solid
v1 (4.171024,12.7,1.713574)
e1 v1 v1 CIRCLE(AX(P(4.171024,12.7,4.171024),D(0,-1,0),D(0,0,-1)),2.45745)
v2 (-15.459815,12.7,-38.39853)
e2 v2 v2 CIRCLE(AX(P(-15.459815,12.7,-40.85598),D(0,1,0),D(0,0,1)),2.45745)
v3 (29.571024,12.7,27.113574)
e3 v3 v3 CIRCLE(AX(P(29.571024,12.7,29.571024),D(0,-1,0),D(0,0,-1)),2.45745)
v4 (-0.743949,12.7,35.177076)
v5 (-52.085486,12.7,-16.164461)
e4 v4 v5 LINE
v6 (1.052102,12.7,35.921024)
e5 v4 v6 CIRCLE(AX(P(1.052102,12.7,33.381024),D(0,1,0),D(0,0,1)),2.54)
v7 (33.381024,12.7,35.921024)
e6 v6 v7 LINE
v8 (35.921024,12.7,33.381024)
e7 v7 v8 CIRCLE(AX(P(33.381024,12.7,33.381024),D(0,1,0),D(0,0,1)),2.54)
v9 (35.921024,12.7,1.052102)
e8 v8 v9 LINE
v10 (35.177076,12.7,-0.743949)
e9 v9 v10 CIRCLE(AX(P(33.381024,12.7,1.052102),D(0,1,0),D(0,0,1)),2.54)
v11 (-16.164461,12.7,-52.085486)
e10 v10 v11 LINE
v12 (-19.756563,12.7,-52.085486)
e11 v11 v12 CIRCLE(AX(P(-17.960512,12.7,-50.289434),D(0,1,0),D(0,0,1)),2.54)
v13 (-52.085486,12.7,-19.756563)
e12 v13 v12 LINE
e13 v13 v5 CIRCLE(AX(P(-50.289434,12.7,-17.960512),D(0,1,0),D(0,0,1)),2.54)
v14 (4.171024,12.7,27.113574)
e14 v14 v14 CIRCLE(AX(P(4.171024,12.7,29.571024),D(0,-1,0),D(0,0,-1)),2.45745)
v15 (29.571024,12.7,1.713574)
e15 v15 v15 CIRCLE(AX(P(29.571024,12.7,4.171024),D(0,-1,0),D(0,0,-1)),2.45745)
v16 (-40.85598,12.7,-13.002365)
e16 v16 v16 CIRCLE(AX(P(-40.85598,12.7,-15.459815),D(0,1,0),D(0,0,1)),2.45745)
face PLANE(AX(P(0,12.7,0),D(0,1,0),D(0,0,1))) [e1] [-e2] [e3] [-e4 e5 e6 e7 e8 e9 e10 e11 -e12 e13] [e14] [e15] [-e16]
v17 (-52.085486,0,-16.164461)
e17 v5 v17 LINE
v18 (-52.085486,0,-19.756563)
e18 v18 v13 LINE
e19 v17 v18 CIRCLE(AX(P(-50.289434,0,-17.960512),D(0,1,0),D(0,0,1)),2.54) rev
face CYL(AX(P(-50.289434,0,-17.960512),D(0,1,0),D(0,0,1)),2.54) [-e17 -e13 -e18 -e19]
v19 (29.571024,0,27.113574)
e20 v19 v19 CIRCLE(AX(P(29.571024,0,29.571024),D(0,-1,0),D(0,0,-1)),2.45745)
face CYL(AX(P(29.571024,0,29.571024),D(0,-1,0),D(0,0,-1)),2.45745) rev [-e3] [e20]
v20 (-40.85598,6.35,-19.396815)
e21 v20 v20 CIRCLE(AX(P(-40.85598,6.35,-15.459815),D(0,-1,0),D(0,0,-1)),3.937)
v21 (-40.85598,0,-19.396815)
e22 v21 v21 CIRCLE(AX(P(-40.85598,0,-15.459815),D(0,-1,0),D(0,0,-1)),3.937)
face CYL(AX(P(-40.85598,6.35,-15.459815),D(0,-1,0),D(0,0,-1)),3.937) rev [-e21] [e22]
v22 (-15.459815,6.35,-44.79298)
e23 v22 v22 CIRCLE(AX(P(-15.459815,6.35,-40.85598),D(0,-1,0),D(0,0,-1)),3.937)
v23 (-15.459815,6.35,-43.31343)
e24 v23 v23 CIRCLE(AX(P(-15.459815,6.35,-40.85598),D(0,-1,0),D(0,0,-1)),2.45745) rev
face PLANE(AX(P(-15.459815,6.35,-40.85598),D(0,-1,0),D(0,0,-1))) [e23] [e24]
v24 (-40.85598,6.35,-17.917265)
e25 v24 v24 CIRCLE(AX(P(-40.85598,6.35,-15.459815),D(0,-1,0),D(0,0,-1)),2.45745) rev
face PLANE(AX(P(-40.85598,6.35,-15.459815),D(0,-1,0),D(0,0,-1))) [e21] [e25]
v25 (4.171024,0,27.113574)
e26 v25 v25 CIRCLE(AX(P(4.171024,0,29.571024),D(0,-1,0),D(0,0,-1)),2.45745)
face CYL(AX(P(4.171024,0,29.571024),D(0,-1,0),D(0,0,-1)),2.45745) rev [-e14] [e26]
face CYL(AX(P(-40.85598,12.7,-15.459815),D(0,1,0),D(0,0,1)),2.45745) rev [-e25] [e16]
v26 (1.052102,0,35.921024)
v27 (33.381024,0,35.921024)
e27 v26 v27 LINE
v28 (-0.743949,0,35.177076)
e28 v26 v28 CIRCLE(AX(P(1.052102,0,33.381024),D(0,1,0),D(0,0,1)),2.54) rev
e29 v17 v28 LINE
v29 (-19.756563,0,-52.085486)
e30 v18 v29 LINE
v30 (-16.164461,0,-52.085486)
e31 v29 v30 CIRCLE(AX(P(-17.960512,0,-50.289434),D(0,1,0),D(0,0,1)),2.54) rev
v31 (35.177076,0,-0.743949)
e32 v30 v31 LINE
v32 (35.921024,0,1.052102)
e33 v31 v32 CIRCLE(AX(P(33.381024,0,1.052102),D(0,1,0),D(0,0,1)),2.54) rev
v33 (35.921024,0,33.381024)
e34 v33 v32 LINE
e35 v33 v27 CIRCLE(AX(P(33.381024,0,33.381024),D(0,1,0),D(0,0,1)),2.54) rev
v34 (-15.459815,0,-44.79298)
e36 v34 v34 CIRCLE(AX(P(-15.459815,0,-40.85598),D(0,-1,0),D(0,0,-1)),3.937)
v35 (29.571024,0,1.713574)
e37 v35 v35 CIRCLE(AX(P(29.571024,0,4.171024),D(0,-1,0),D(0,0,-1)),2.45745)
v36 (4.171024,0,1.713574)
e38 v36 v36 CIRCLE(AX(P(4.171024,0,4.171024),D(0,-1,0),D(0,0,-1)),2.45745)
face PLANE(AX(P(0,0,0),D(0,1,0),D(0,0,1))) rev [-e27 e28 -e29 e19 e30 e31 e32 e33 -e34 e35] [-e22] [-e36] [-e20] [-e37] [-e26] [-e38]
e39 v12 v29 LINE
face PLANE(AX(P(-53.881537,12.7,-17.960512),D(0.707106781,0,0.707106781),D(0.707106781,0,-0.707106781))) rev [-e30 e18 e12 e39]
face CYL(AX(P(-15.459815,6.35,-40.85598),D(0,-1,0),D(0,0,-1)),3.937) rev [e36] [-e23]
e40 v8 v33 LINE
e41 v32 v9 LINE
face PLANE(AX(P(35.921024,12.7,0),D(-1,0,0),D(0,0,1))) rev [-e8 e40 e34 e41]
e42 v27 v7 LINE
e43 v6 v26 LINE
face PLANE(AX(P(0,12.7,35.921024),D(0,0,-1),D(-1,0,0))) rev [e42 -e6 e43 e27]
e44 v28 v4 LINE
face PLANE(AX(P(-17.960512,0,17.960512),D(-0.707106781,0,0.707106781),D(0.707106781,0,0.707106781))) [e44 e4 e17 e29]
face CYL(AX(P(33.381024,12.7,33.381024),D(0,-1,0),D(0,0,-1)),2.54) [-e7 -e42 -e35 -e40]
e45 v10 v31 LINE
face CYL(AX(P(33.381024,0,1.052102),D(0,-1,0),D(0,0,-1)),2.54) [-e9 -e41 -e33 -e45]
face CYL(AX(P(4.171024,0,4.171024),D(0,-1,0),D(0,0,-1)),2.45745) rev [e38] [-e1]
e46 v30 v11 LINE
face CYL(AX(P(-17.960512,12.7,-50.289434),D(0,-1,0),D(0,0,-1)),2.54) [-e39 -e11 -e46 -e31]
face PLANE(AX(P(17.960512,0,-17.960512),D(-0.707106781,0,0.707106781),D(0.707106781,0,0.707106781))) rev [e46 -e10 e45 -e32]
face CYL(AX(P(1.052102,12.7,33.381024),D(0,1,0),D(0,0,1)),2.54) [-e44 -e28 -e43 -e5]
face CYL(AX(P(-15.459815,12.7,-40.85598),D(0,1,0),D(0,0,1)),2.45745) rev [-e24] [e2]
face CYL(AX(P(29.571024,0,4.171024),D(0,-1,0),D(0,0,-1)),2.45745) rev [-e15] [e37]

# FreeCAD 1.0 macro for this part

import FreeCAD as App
import Part
import Sketcher
Q = App.Units.Quantity


def edges_at(feature, points):
    """Names of the edges that pass closest to the given points."""
    edges = feature.Shape.Edges
    near = lambda p: min(range(len(edges)), key=lambda i: edges[i].distToShape(Part.Vertex(*p))[0])
    return sorted({f"Edge{near(p) + 1}" for p in points})

doc = App.newDocument("Part")
body = doc.addObject("PartDesign::Body", "Body")

# Sketch on XZ plane
sketch1 = body.newObject("Sketcher::SketchObject", "Sketch")
sketch1.AttachmentSupport = (doc.getObject("XZ_Plane"), [""])
sketch1.MapMode = "FlatFace"
sketch1.addGeometry(Part.LineSegment(App.Vector(0, 0, 0), App.Vector(0, 36, 0)), False)
sketch1.addGeometry(Part.LineSegment(App.Vector(0, 36, 0), App.Vector(36, 36, 0)), False)
sketch1.addGeometry(Part.LineSegment(App.Vector(36, 36, 0), App.Vector(36, 0, 0)), False)
sketch1.addGeometry(Part.LineSegment(App.Vector(36, 0, 0), App.Vector(0, 0, 0)), False)
sketch1.addConstraint(Sketcher.Constraint("Coincident", 0, 2, 1, 1))
sketch1.addConstraint(Sketcher.Constraint("Coincident", 1, 2, 2, 1))
sketch1.addConstraint(Sketcher.Constraint("Coincident", 2, 2, 3, 1))
sketch1.addConstraint(Sketcher.Constraint("Coincident", 3, 2, 0, 1))
sketch1.addConstraint(Sketcher.Constraint("Vertical", 0))
sketch1.addConstraint(Sketcher.Constraint("Horizontal", 1))
sketch1.addConstraint(Sketcher.Constraint("Vertical", 2))
sketch1.addConstraint(Sketcher.Constraint("Horizontal", 3))
sketch1.addConstraint(Sketcher.Constraint("Coincident", 3, 2, -1, 1))
sketch1.addConstraint(Sketcher.Constraint("Equal", 3, 0))
sketch1.addConstraint(Sketcher.Constraint("DistanceX", 1, 1, 1, 2, 35.921024))
pad1 = body.newObject("PartDesign::Pad", "Pad")
pad1.Profile = sketch1
pad1.Length = Q("0.5 in")
pad1.Reversed = True

# Sketch on an angled plane
sketch2 = body.newObject("Sketcher::SketchObject", "Sketch001")
sketch2.Placement = App.Placement(App.Vector(0, 0, 0), App.Rotation(App.Vector(0.707106781, 0, 0.707106781), App.Vector(0, 0.999999999, 0), App.Vector(-0.707106781, 0, 0.707106781), "ZXY"))
sketch2.addGeometry(Part.LineSegment(App.Vector(25, 13, 0), App.Vector(-51, 13, 0)), False)
sketch2.addGeometry(Part.LineSegment(App.Vector(-51, 13, 0), App.Vector(-51, 0, 0)), False)
sketch2.addGeometry(Part.LineSegment(App.Vector(-51, 0, 0), App.Vector(25, 0, 0)), False)
sketch2.addGeometry(Part.LineSegment(App.Vector(25, 0, 0), App.Vector(25, 13, 0)), False)
sketch2.addConstraint(Sketcher.Constraint("Coincident", 0, 2, 1, 1))
sketch2.addConstraint(Sketcher.Constraint("Coincident", 1, 2, 2, 1))
sketch2.addConstraint(Sketcher.Constraint("Coincident", 2, 2, 3, 1))
sketch2.addConstraint(Sketcher.Constraint("Coincident", 3, 2, 0, 1))
sketch2.addConstraint(Sketcher.Constraint("Horizontal", 0))
sketch2.addConstraint(Sketcher.Constraint("Vertical", 1))
sketch2.addConstraint(Sketcher.Constraint("Horizontal", 2))
sketch2.addConstraint(Sketcher.Constraint("Vertical", 3))
sketch2.addConstraint(Sketcher.Constraint("PointOnObject", 1, 2, -1))
sketch2.addConstraint(Sketcher.Constraint("DistanceX", 0, 2, 0, 1, Q("3 in")))
sketch2.addConstraint(Sketcher.Constraint("DistanceY", 1, 2, 1, 1, Q("0.5 in")))
sketch2.addConstraint(Sketcher.Constraint("DistanceX", 0, 2, -1, 1, Q("2 in")))
pad2 = body.newObject("PartDesign::Pad", "Pad001")
pad2.Profile = sketch2
pad2.Length = Q("2 in")
pad2.Midplane = True

# Sketch on XZ plane
sketch3 = body.newObject("Sketcher::SketchObject", "Sketch002")
sketch3.AttachmentSupport = (doc.getObject("XZ_Plane"), [""])
sketch3.MapMode = "FlatFace"
sketch3.addGeometry(Part.Circle(App.Vector(29.6, 29.6, 0), App.Vector(0, 0, 1), 2.5), False)
sketch3.addGeometry(Part.Circle(App.Vector(4.2, 4.2, 0), App.Vector(0, 0, 1), 2.5), False)
sketch3.addGeometry(Part.Circle(App.Vector(29.6, 4.2, 0), App.Vector(0, 0, 1), 2.5), False)
sketch3.addGeometry(Part.Circle(App.Vector(4.2, 29.6, 0), App.Vector(0, 0, 1), 2.5), False)
sketch3.addConstraint(Sketcher.Constraint("Equal", 0, 1))
sketch3.addConstraint(Sketcher.Constraint("Equal", 1, 2))
sketch3.addConstraint(Sketcher.Constraint("Equal", 2, 3))
sketch3.addConstraint(Sketcher.Constraint("Horizontal", 1, 3, 2, 3))
sketch3.addConstraint(Sketcher.Constraint("Horizontal", 0, 3, 3, 3))
sketch3.addConstraint(Sketcher.Constraint("Vertical", 0, 3, 2, 3))
sketch3.addConstraint(Sketcher.Constraint("Vertical", 1, 3, 3, 3))
sketch3.addConstraint(Sketcher.Constraint("DistanceX", 1, 3, 0, 3, Q("1 in")))
sketch3.addConstraint(Sketcher.Constraint("DistanceY", 1, 3, 0, 3, Q("1 in")))
sketch3.addConstraint(Sketcher.Constraint("Diameter", 0, Q("0.1935 in")))
sketch3.addConstraint(Sketcher.Constraint("DistanceX", -1, 1, 0, 3, 29.571024))
sketch3.addConstraint(Sketcher.Constraint("DistanceY", -1, 1, 0, 3, 29.571024))
doc.recompute()
hole = body.newObject("PartDesign::Hole", "Hole")
hole.Profile = sketch3
hole.ThreadType = "None"
hole.Diameter = Q("0.1935 in")
hole.DepthType = "ThroughAll"

# Sketch on XZ plane
sketch4 = body.newObject("Sketcher::SketchObject", "Sketch003")
sketch4.AttachmentSupport = (doc.getObject("XZ_Plane"), [""])
sketch4.MapMode = "FlatFace"
sketch4.AttachmentOffset = App.Placement(App.Vector(0, 0, -0.5 * 25.4), App.Rotation())
sketch4.addGeometry(Part.Circle(App.Vector(-40.9, -15.5, 0), App.Vector(0, 0, 1), 2.5), False)
sketch4.addGeometry(Part.Circle(App.Vector(-15.5, -40.9, 0), App.Vector(0, 0, 1), 2.5), False)
sketch4.addConstraint(Sketcher.Constraint("Equal", 0, 1))
sketch4.addConstraint(Sketcher.Constraint("Diameter", 0, Q("0.1935 in")))
sketch4.addConstraint(Sketcher.Constraint("DistanceX", 0, 3, -1, 1, 40.85598))
sketch4.addConstraint(Sketcher.Constraint("DistanceY", 1, 3, -1, 1, 40.85598))
sketch4.addConstraint(Sketcher.Constraint("DistanceY", 0, 3, -1, 1, 15.459815))
sketch4.addConstraint(Sketcher.Constraint("DistanceX", 1, 3, -1, 1, 15.459815))
doc.recompute()
hole2 = body.newObject("PartDesign::Hole", "Hole001")
hole2.Profile = sketch4
hole2.ThreadType = "None"
hole2.Diameter = Q("0.1935 in")
hole2.DepthType = "ThroughAll"
hole2.Reversed = True

# Sketch on XZ plane
sketch5 = body.newObject("Sketcher::SketchObject", "Sketch004")
sketch5.AttachmentSupport = (doc.getObject("XZ_Plane"), [""])
sketch5.MapMode = "FlatFace"
sketch5.addGeometry(Part.Circle(App.Vector(-40.9, -15.5, 0), App.Vector(0, 0, 1), 3.9), False)
sketch5.addGeometry(Part.Circle(App.Vector(-15.5, -40.9, 0), App.Vector(0, 0, 1), 3.9), False)
sketch5.addConstraint(Sketcher.Constraint("Equal", 0, 1))
sketch5.addConstraint(Sketcher.Constraint("Diameter", 0, Q("0.31 in")))
sketch5.addConstraint(Sketcher.Constraint("DistanceX", 0, 3, -1, 1, 40.85598))
sketch5.addConstraint(Sketcher.Constraint("DistanceY", 1, 3, -1, 1, 40.85598))
sketch5.addConstraint(Sketcher.Constraint("DistanceY", 0, 3, -1, 1, 15.459815))
sketch5.addConstraint(Sketcher.Constraint("DistanceX", 1, 3, -1, 1, 15.459815))
pocket1 = body.newObject("PartDesign::Pocket", "Pocket")
pocket1.Profile = sketch5
pocket1.Length = Q("0.25 in")
doc.recompute()

fillet = body.newObject("PartDesign::Fillet", "Fillet")
fillet.Base = (pocket1, edges_at(pocket1, [
    (-17.961, 6.35, -53.882),
    (-53.882, 6.35, -17.961),
    (35.921, 6.35, 0),
    (35.921, 6.35, 35.921),
    (0, 6.35, 35.921),
]))
fillet.Radius = Q("0.1 in")

doc.recompute()
